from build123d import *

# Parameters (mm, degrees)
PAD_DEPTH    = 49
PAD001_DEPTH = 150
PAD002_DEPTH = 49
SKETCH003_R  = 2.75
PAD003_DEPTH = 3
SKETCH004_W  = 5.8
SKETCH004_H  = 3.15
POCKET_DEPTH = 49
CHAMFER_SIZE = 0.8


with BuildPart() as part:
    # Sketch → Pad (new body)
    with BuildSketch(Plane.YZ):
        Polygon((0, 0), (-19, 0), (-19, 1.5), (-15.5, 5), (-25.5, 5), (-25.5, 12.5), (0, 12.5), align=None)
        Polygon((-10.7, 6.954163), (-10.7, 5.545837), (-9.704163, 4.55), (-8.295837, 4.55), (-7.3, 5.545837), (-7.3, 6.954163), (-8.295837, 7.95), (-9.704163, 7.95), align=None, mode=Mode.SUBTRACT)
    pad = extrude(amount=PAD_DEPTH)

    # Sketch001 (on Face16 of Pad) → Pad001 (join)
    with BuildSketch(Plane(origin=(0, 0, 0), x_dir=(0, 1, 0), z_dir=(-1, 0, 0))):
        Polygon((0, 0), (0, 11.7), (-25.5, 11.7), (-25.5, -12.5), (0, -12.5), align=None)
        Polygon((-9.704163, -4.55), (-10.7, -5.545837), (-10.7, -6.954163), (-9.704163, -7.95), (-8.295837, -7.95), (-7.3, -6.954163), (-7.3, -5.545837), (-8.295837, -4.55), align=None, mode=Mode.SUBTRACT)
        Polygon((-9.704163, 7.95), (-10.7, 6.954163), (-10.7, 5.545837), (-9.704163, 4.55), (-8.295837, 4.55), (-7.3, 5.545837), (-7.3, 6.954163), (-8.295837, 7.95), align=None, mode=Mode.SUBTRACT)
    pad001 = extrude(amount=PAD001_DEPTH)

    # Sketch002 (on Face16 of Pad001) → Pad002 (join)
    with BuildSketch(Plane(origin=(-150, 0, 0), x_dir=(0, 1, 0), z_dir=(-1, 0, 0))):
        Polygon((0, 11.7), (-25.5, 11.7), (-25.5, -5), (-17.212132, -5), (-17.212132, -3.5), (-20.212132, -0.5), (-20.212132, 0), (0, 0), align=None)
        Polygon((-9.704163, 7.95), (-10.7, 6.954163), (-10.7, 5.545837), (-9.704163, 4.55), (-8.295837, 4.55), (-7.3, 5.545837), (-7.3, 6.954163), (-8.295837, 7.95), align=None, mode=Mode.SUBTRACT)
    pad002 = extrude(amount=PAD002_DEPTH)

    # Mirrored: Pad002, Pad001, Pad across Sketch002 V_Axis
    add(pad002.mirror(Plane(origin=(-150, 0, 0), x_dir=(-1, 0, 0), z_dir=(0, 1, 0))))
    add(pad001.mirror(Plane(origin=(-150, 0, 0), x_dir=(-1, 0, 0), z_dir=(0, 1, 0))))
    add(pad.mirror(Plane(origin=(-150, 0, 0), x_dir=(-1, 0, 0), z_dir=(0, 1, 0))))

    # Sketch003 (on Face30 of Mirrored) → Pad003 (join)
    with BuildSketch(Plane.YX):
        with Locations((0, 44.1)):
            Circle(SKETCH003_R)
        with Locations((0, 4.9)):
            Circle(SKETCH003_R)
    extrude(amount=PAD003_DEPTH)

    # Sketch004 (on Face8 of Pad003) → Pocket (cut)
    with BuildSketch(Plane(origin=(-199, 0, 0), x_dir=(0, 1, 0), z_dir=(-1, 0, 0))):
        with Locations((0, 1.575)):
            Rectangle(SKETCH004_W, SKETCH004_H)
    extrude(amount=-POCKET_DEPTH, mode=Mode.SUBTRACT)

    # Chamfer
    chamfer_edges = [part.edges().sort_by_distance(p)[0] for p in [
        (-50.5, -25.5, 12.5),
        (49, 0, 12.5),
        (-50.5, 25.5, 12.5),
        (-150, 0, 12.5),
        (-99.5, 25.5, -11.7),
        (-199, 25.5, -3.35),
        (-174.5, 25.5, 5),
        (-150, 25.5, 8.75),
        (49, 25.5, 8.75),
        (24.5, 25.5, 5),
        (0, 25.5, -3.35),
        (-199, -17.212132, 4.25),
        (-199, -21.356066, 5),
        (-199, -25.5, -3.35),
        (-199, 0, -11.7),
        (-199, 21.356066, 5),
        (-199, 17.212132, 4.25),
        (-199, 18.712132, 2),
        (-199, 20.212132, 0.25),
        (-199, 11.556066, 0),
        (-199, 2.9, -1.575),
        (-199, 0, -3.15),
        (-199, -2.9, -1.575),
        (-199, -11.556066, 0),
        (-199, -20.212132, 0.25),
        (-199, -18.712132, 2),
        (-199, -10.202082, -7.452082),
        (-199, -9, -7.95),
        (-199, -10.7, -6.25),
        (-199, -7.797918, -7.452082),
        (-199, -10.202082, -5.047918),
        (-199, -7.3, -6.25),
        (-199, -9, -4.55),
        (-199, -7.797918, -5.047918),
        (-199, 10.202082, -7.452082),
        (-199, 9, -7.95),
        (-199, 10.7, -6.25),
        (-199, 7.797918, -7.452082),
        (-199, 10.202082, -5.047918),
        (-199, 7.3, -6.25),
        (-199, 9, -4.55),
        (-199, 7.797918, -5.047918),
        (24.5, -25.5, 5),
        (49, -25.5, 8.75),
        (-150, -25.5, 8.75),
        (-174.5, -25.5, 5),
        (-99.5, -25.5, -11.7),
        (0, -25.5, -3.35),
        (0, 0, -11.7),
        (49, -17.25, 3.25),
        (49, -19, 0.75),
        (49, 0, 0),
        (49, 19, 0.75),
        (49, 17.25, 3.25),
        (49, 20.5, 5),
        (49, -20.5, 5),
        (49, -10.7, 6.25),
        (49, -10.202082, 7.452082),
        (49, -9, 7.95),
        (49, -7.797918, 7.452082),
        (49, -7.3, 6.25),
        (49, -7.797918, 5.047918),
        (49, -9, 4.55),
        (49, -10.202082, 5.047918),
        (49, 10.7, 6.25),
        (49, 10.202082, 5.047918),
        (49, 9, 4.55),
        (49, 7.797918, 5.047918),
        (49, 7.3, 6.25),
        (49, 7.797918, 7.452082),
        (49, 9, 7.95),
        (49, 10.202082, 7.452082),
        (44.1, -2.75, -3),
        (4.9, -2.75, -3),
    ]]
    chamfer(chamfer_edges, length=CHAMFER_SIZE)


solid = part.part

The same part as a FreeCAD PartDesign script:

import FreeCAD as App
import Part
import Sketcher
from FreeCAD import Vector
Q = App.Units.Quantity


def edges_at(feature, points):
    """Names of the edges that pass closest to the given points."""
    edges = feature.Shape.Edges
    near = lambda p: min(range(len(edges)), key=lambda i: edges[i].distToShape(Part.Vertex(*p))[0])
    return sorted({f"Edge{near(p) + 1}" for p in points})


def add_polygon(sketch, points):
    """Adds a closed chain of lines whose ends are joined by coincident constraints."""
    first, n = sketch.GeometryCount, len(points)
    for a, b in zip(points, points[1:] + points[:1]):
        sketch.addGeometry(Part.LineSegment(App.Vector(*a, 0), App.Vector(*b, 0)), False)
    for i in range(n):
        sketch.addConstraint(Sketcher.Constraint("Coincident", first + i, 2, first + (i + 1) % n, 1))

doc = App.newDocument("Part")
params = doc.addObject("Spreadsheet::Sheet", "Params")
for row, (alias, value) in enumerate([
    ("sketch1_width", "19 mm"),
    ("sketch1_width2", "10 mm"),
    ("sketch1_width3", "25.5 mm"),
    ("sketch1_height", "12.5 mm"),
    ("sketch1_height2", "7.5 mm"),
    ("pad1_length", "49 mm"),
    ("sketch2_width", "25.5 mm"),
    ("sketch2_height", "24.2 mm"),
    ("pad2_length", "150 mm"),
    ("sketch3_width", "25.5 mm"),
    ("sketch3_height", "16.7 mm"),
    ("sketch3_height2", "1.5 mm"),
    ("sketch3_height3", "0.5 mm"),
    ("sketch3_height4", "11.7 mm"),
    ("pad3_length", "49 mm"),
    ("sketch4_diameter", "5.5 mm"),
    ("pad4_length", "3 mm"),
    ("sketch5_width", "5.8 mm"),
    ("sketch5_height", "3.15 mm"),
    ("pocket1_length", "49 mm"),
    ("chamfer_size", "0.8 mm"),
], start=1):
    params.set(f"A{row}", alias)
    params.set(f"B{row}", "=" + value)
    params.setAlias(f"B{row}", alias)

body = doc.addObject("PartDesign::Body", "Body")

# Sketch on YZ plane
sketch1 = body.newObject("Sketcher::SketchObject", "Sketch")
sketch1.AttachmentSupport = (doc.getObject("YZ_Plane"), [""])
sketch1.MapMode = "FlatFace"
add_polygon(sketch1, [(-19, 0), (0, 0), (0, 12.5), (-25.5, 12.5), (-25.5, 5), (-15.5, 5), (-19, 1.5)])  # lines 0-6
add_polygon(sketch1, [(-10.7, 7), (-9.7, 8), (-8.3, 8), (-7.3, 7), (-7.3, 5.5), (-8.3, 4.5), (-9.7, 4.5), (-10.7, 5.5)])  # lines 7-14
sketch1.addConstraint([
    Sketcher.Constraint("Horizontal", 0),
    Sketcher.Constraint("Vertical", 1),
    Sketcher.Constraint("Horizontal", 2),
    Sketcher.Constraint("Vertical", 3),
    Sketcher.Constraint("Horizontal", 4),
    Sketcher.Constraint("Vertical", 6),
    Sketcher.Constraint("Horizontal", 8),
    Sketcher.Constraint("Vertical", 10),
    Sketcher.Constraint("Horizontal", 12),
    Sketcher.Constraint("Vertical", 14),
    Sketcher.Constraint("Coincident", 0, 2, -1, 1),
    Sketcher.Constraint("Parallel", 5, 7),
    Sketcher.Constraint("Perpendicular", 7, 9),
    Sketcher.Constraint("Perpendicular", 9, 11),
    Sketcher.Constraint("Perpendicular", 11, 13),
    Sketcher.Constraint("Horizontal", 10, 2, 13, 2),
    Sketcher.Constraint("Horizontal", 9, 2, 14, 2),
    Sketcher.Constraint("Vertical", 8, 2, 11, 2),
    Sketcher.Constraint("Vertical", 7, 2, 12, 2),
    Sketcher.Constraint("Equal", 12, 10),
    Sketcher.Constraint("DistanceX", 0, 1, 0, 2, Q("19 mm")),
    Sketcher.Constraint("DistanceX", 4, 1, 4, 2, Q("10 mm")),
    Sketcher.Constraint("DistanceX", 2, 2, 2, 1, Q("25.5 mm")),
    Sketcher.Constraint("DistanceY", 1, 1, 1, 2, Q("12.5 mm")),
    Sketcher.Constraint("DistanceY", 3, 2, 3, 1, Q("7.5 mm")),
    Sketcher.Constraint("DistanceX", 9, 2, -1, 1, Q("7.3 mm")),
    Sketcher.Constraint("DistanceX", 13, 2, -1, 1, Q("10.7 mm")),
    Sketcher.Constraint("DistanceY", -1, 1, 7, 2, Q("7.95 mm")),
    Sketcher.Constraint("DistanceX", 8, 1, 8, 2, Q("1.408326 mm")),
])
sketch1.setExpression("Constraints[35]", "Params.sketch1_width")
sketch1.setExpression("Constraints[36]", "Params.sketch1_width2")
sketch1.setExpression("Constraints[37]", "Params.sketch1_width3")
sketch1.setExpression("Constraints[38]", "Params.sketch1_height")
sketch1.setExpression("Constraints[39]", "Params.sketch1_height2")
pad1 = body.newObject("PartDesign::Pad", "Pad")
pad1.Profile = sketch1
pad1.setExpression("Length", "Params.pad1_length")

# Sketch on YZ plane
sketch2 = body.newObject("Sketcher::SketchObject", "Sketch001")
sketch2.AttachmentSupport = (doc.getObject("YZ_Plane"), [""])
sketch2.MapMode = "FlatFace"
add_polygon(sketch2, [(0, -11.7), (-25.5, -11.7), (-25.5, 12.5), (0, 12.5)])  # lines 0-3
add_polygon(sketch2, [(-10.7, 5.5), (-9.7, 4.5), (-8.3, 4.5), (-7.3, 5.5), (-7.3, 7), (-8.3, 8), (-9.7, 8), (-10.7, 7)])  # lines 4-11
add_polygon(sketch2, [(-10.7, -7), (-9.7, -8), (-8.3, -8), (-7.3, -7), (-7.3, -5.5), (-8.3, -4.5), (-9.7, -4.5), (-10.7, -5.5)])  # lines 12-19
sketch2.addConstraint([
    Sketcher.Constraint("Horizontal", 0),
    Sketcher.Constraint("Vertical", 1),
    Sketcher.Constraint("Horizontal", 2),
    Sketcher.Constraint("Vertical", 3),
    Sketcher.Constraint("Horizontal", 5),
    Sketcher.Constraint("Vertical", 7),
    Sketcher.Constraint("Horizontal", 9),
    Sketcher.Constraint("Vertical", 11),
    Sketcher.Constraint("Horizontal", 13),
    Sketcher.Constraint("Vertical", 15),
    Sketcher.Constraint("Horizontal", 17),
    Sketcher.Constraint("Vertical", 19),
    Sketcher.Constraint("Symmetric", 9, 2, 12, 2, -1),
    Sketcher.Constraint("Symmetric", 7, 2, 14, 2, -1),
    Sketcher.Constraint("Symmetric", 5, 2, 16, 2, -1),
    Sketcher.Constraint("Symmetric", 11, 2, 18, 2, -1),
    Sketcher.Constraint("PointOnObject", 2, 2, -2),
    Sketcher.Constraint("Perpendicular", 4, 6),
    Sketcher.Constraint("Perpendicular", 6, 8),
    Sketcher.Constraint("Perpendicular", 8, 10),
    Sketcher.Constraint("Perpendicular", 10, 12),
    Sketcher.Constraint("Perpendicular", 12, 14),
    Sketcher.Constraint("Perpendicular", 14, 16),
    Sketcher.Constraint("Perpendicular", 16, 18),
    Sketcher.Constraint("Horizontal", 7, 2, 10, 2),
    Sketcher.Constraint("Horizontal", 6, 2, 11, 2),
    Sketcher.Constraint("Horizontal", 15, 2, 18, 2),
    Sketcher.Constraint("Vertical", 5, 2, 8, 2),
    Sketcher.Constraint("Equal", 17, 7),
    Sketcher.Constraint("DistanceX", 0, 2, 0, 1, Q("25.5 mm")),
    Sketcher.Constraint("DistanceY", 1, 1, 1, 2, Q("24.2 mm")),
    Sketcher.Constraint("DistanceY", 0, 2, -1, 1, Q("11.7 mm")),
    Sketcher.Constraint("DistanceX", 6, 2, -1, 1, Q("7.3 mm")),
    Sketcher.Constraint("DistanceX", 10, 2, -1, 1, Q("10.7 mm")),
    Sketcher.Constraint("DistanceY", 12, 2, 4, 2, Q("12.5 mm")),
    Sketcher.Constraint("DistanceX", 5, 1, 5, 2, Q("1.408326 mm")),
])
sketch2.setExpression("Constraints[49]", "Params.sketch2_width")
sketch2.setExpression("Constraints[50]", "Params.sketch2_height")
pad2 = body.newObject("PartDesign::Pad", "Pad001")
pad2.Profile = sketch2
pad2.setExpression("Length", "Params.pad2_length")
pad2.Reversed = True

# Sketch on YZ plane
sketch3 = body.newObject("Sketcher::SketchObject", "Sketch002")
sketch3.AttachmentSupport = (doc.getObject("YZ_Plane"), [""])
sketch3.MapMode = "FlatFace"
sketch3.AttachmentOffset = App.Placement(Vector(0, 0, -150), App.Rotation())
add_polygon(sketch3, [(0, -11.7), (-25.5, -11.7), (-25.5, 5), (-17.2, 5), (-17.2, 3.5), (-20.2, 0.5), (-20.2, 0), (0, 0)])  # lines 0-7
add_polygon(sketch3, [(-10.7, -7), (-9.7, -8), (-8.3, -8), (-7.3, -7), (-7.3, -5.5), (-8.3, -4.5), (-9.7, -4.5), (-10.7, -5.5)])  # lines 8-15
sketch3.addConstraint([
    Sketcher.Constraint("Horizontal", 0),
    Sketcher.Constraint("Vertical", 1),
    Sketcher.Constraint("Horizontal", 2),
    Sketcher.Constraint("Vertical", 3),
    Sketcher.Constraint("Vertical", 5),
    Sketcher.Constraint("Horizontal", 6),
    Sketcher.Constraint("Vertical", 7),
    Sketcher.Constraint("Horizontal", 9),
    Sketcher.Constraint("Vertical", 11),
    Sketcher.Constraint("Horizontal", 13),
    Sketcher.Constraint("Vertical", 15),
    Sketcher.Constraint("Coincident", 6, 2, -1, 1),
    Sketcher.Constraint("Perpendicular", 4, 8),
    Sketcher.Constraint("Perpendicular", 8, 10),
    Sketcher.Constraint("Perpendicular", 10, 12),
    Sketcher.Constraint("Perpendicular", 12, 14),
    Sketcher.Constraint("Horizontal", 11, 2, 14, 2),
    Sketcher.Constraint("Horizontal", 10, 2, 15, 2),
    Sketcher.Constraint("Vertical", 9, 2, 12, 2),
    Sketcher.Constraint("Vertical", 8, 2, 13, 2),
    Sketcher.Constraint("Equal", 13, 11),
    Sketcher.Constraint("DistanceX", 0, 2, 0, 1, Q("25.5 mm")),
    Sketcher.Constraint("DistanceY", 1, 1, 1, 2, Q("16.7 mm")),
    Sketcher.Constraint("DistanceY", 3, 2, 3, 1, Q("1.5 mm")),
    Sketcher.Constraint("DistanceY", 5, 2, 5, 1, Q("0.5 mm")),
    Sketcher.Constraint("DistanceY", 7, 2, 7, 1, Q("11.7 mm")),
    Sketcher.Constraint("DistanceX", 10, 2, -1, 1, Q("7.3 mm")),
    Sketcher.Constraint("DistanceX", 14, 2, -1, 1, Q("10.7 mm")),
    Sketcher.Constraint("DistanceY", 8, 2, -1, 1, Q("7.95 mm")),
    Sketcher.Constraint("DistanceX", 2, 1, 2, 2, Q("8.287868 mm")),
    Sketcher.Constraint("DistanceX", 9, 1, 9, 2, Q("1.408326 mm")),
])
sketch3.setExpression("Constraints[37]", "Params.sketch3_width")
sketch3.setExpression("Constraints[38]", "Params.sketch3_height")
sketch3.setExpression("Constraints[39]", "Params.sketch3_height2")
sketch3.setExpression("Constraints[40]", "Params.sketch3_height3")
sketch3.setExpression("Constraints[41]", "Params.sketch3_height4")
pad3 = body.newObject("PartDesign::Pad", "Pad002")
pad3.Profile = sketch3
pad3.setExpression("Length", "Params.pad3_length")
pad3.Reversed = True
doc.recompute()

mirrored = body.newObject("PartDesign::Mirrored", "Mirrored")
mirrored.Originals = [pad3, pad2, pad1]
mirrored.MirrorPlane = (doc.getObject("XZ_Plane"), [""])
body.Tip = mirrored

# Sketch on XY plane
sketch4 = body.newObject("Sketcher::SketchObject", "Sketch003")
sketch4.AttachmentSupport = (doc.getObject("XY_Plane"), [""])
sketch4.MapMode = "FlatFace"
sketch4.addGeometry([
    Part.Circle(Vector(44.1, 0, 0), Vector(0, 0, 1), 2.8),
    Part.Circle(Vector(4.9, 0, 0), Vector(0, 0, 1), 2.8),
], False)
sketch4.addConstraint([
    Sketcher.Constraint("Equal", 0, 1),
    Sketcher.Constraint("PointOnObject", 0, 3, -1),
    Sketcher.Constraint("PointOnObject", 1, 3, -1),
    Sketcher.Constraint("Diameter", 0, Q("5.5 mm")),
    Sketcher.Constraint("DistanceX", -1, 1, 0, 3, Q("44.1 mm")),
    Sketcher.Constraint("DistanceX", -1, 1, 1, 3, Q("4.9 mm")),
])
sketch4.setExpression("Constraints[3]", "Params.sketch4_diameter")
pad4 = body.newObject("PartDesign::Pad", "Pad003")
pad4.Profile = sketch4
pad4.setExpression("Length", "Params.pad4_length")
pad4.Reversed = True

# Sketch on YZ plane
sketch5 = body.newObject("Sketcher::SketchObject", "Sketch004")
sketch5.AttachmentSupport = (doc.getObject("YZ_Plane"), [""])
sketch5.MapMode = "FlatFace"
sketch5.AttachmentOffset = App.Placement(Vector(0, 0, -199), App.Rotation())
add_polygon(sketch5, [(-2.9, -3.1), (-2.9, 0), (2.9, 0), (2.9, -3.1)])  # lines 0-3
sketch5.addConstraint([
    Sketcher.Constraint("Vertical", 0),
    Sketcher.Constraint("Horizontal", 1),
    Sketcher.Constraint("Vertical", 2),
    Sketcher.Constraint("Horizontal", 3),
    Sketcher.Constraint("Symmetric", 0, 2, 1, 2, -1, 1),
    Sketcher.Constraint("DistanceX", 1, 1, 1, 2, Q("5.8 mm")),
    Sketcher.Constraint("DistanceY", 0, 1, 0, 2, Q("3.15 mm")),
])
sketch5.setExpression("Constraints[9]", "Params.sketch5_width")
sketch5.setExpression("Constraints[10]", "Params.sketch5_height")
pocket1 = body.newObject("PartDesign::Pocket", "Pocket")
pocket1.Profile = sketch5
pocket1.setExpression("Length", "Params.pocket1_length")
pocket1.Reversed = True
doc.recompute()

chamfer = body.newObject("PartDesign::Chamfer", "Chamfer")
chamfer.Base = (pocket1, edges_at(pocket1, [
    (-50.5, -25.5, 12.5),
    (49, 0, 12.5),
    (-50.5, 25.5, 12.5),
    (-150, 0, 12.5),
    (-99.5, 25.5, -11.7),
    (-199, 25.5, -3.35),
    (-174.5, 25.5, 5),
    (-150, 25.5, 8.75),
    (49, 25.5, 8.75),
    (24.5, 25.5, 5),
    (0, 25.5, -3.35),
    (-199, -17.212, 4.25),
    (-199, -21.356, 5),
    (-199, -25.5, -3.35),
    (-199, 0, -11.7),
    (-199, 21.356, 5),
    (-199, 17.212, 4.25),
    (-199, 18.712, 2),
    (-199, 20.212, 0.25),
    (-199, 11.556, 0),
    (-199, 2.9, -1.575),
    (-199, 0, -3.15),
    (-199, -2.9, -1.575),
    (-199, -11.556, 0),
    (-199, -20.212, 0.25),
    (-199, -18.712, 2),
    (-199, -10.202, -7.452),
    (-199, -9, -7.95),
    (-199, -10.7, -6.25),
    (-199, -7.798, -7.452),
    (-199, -10.202, -5.048),
    (-199, -7.3, -6.25),
    (-199, -9, -4.55),
    (-199, -7.798, -5.048),
    (-199, 10.202, -7.452),
    (-199, 9, -7.95),
    (-199, 10.7, -6.25),
    (-199, 7.798, -7.452),
    (-199, 10.202, -5.048),
    (-199, 7.3, -6.25),
    (-199, 9, -4.55),
    (-199, 7.798, -5.048),
    (24.5, -25.5, 5),
    (49, -25.5, 8.75),
    (-150, -25.5, 8.75),
    (-174.5, -25.5, 5),
    (-99.5, -25.5, -11.7),
    (0, -25.5, -3.35),
    (0, 0, -11.7),
    (49, -17.25, 3.25),
    (49, -19, 0.75),
    (49, 0, 0),
    (49, 19, 0.75),
    (49, 17.25, 3.25),
    (49, 20.5, 5),
    (49, -20.5, 5),
    (49, -10.7, 6.25),
    (49, -10.202, 7.452),
    (49, -9, 7.95),
    (49, -7.798, 7.452),
    (49, -7.3, 6.25),
    (49, -7.798, 5.048),
    (49, -9, 4.55),
    (49, -10.202, 5.048),
    (49, 10.7, 6.25),
    (49, 10.202, 5.048),
    (49, 9, 4.55),
    (49, 7.798, 5.048),
    (49, 7.3, 6.25),
    (49, 7.798, 7.452),
    (49, 9, 7.95),
    (49, 10.202, 7.452),
    (44.1, -2.75, -3),
    (4.9, -2.75, -3),
]))
chamfer.setExpression("Size", "Params.chamfer_size")

doc.recompute()
